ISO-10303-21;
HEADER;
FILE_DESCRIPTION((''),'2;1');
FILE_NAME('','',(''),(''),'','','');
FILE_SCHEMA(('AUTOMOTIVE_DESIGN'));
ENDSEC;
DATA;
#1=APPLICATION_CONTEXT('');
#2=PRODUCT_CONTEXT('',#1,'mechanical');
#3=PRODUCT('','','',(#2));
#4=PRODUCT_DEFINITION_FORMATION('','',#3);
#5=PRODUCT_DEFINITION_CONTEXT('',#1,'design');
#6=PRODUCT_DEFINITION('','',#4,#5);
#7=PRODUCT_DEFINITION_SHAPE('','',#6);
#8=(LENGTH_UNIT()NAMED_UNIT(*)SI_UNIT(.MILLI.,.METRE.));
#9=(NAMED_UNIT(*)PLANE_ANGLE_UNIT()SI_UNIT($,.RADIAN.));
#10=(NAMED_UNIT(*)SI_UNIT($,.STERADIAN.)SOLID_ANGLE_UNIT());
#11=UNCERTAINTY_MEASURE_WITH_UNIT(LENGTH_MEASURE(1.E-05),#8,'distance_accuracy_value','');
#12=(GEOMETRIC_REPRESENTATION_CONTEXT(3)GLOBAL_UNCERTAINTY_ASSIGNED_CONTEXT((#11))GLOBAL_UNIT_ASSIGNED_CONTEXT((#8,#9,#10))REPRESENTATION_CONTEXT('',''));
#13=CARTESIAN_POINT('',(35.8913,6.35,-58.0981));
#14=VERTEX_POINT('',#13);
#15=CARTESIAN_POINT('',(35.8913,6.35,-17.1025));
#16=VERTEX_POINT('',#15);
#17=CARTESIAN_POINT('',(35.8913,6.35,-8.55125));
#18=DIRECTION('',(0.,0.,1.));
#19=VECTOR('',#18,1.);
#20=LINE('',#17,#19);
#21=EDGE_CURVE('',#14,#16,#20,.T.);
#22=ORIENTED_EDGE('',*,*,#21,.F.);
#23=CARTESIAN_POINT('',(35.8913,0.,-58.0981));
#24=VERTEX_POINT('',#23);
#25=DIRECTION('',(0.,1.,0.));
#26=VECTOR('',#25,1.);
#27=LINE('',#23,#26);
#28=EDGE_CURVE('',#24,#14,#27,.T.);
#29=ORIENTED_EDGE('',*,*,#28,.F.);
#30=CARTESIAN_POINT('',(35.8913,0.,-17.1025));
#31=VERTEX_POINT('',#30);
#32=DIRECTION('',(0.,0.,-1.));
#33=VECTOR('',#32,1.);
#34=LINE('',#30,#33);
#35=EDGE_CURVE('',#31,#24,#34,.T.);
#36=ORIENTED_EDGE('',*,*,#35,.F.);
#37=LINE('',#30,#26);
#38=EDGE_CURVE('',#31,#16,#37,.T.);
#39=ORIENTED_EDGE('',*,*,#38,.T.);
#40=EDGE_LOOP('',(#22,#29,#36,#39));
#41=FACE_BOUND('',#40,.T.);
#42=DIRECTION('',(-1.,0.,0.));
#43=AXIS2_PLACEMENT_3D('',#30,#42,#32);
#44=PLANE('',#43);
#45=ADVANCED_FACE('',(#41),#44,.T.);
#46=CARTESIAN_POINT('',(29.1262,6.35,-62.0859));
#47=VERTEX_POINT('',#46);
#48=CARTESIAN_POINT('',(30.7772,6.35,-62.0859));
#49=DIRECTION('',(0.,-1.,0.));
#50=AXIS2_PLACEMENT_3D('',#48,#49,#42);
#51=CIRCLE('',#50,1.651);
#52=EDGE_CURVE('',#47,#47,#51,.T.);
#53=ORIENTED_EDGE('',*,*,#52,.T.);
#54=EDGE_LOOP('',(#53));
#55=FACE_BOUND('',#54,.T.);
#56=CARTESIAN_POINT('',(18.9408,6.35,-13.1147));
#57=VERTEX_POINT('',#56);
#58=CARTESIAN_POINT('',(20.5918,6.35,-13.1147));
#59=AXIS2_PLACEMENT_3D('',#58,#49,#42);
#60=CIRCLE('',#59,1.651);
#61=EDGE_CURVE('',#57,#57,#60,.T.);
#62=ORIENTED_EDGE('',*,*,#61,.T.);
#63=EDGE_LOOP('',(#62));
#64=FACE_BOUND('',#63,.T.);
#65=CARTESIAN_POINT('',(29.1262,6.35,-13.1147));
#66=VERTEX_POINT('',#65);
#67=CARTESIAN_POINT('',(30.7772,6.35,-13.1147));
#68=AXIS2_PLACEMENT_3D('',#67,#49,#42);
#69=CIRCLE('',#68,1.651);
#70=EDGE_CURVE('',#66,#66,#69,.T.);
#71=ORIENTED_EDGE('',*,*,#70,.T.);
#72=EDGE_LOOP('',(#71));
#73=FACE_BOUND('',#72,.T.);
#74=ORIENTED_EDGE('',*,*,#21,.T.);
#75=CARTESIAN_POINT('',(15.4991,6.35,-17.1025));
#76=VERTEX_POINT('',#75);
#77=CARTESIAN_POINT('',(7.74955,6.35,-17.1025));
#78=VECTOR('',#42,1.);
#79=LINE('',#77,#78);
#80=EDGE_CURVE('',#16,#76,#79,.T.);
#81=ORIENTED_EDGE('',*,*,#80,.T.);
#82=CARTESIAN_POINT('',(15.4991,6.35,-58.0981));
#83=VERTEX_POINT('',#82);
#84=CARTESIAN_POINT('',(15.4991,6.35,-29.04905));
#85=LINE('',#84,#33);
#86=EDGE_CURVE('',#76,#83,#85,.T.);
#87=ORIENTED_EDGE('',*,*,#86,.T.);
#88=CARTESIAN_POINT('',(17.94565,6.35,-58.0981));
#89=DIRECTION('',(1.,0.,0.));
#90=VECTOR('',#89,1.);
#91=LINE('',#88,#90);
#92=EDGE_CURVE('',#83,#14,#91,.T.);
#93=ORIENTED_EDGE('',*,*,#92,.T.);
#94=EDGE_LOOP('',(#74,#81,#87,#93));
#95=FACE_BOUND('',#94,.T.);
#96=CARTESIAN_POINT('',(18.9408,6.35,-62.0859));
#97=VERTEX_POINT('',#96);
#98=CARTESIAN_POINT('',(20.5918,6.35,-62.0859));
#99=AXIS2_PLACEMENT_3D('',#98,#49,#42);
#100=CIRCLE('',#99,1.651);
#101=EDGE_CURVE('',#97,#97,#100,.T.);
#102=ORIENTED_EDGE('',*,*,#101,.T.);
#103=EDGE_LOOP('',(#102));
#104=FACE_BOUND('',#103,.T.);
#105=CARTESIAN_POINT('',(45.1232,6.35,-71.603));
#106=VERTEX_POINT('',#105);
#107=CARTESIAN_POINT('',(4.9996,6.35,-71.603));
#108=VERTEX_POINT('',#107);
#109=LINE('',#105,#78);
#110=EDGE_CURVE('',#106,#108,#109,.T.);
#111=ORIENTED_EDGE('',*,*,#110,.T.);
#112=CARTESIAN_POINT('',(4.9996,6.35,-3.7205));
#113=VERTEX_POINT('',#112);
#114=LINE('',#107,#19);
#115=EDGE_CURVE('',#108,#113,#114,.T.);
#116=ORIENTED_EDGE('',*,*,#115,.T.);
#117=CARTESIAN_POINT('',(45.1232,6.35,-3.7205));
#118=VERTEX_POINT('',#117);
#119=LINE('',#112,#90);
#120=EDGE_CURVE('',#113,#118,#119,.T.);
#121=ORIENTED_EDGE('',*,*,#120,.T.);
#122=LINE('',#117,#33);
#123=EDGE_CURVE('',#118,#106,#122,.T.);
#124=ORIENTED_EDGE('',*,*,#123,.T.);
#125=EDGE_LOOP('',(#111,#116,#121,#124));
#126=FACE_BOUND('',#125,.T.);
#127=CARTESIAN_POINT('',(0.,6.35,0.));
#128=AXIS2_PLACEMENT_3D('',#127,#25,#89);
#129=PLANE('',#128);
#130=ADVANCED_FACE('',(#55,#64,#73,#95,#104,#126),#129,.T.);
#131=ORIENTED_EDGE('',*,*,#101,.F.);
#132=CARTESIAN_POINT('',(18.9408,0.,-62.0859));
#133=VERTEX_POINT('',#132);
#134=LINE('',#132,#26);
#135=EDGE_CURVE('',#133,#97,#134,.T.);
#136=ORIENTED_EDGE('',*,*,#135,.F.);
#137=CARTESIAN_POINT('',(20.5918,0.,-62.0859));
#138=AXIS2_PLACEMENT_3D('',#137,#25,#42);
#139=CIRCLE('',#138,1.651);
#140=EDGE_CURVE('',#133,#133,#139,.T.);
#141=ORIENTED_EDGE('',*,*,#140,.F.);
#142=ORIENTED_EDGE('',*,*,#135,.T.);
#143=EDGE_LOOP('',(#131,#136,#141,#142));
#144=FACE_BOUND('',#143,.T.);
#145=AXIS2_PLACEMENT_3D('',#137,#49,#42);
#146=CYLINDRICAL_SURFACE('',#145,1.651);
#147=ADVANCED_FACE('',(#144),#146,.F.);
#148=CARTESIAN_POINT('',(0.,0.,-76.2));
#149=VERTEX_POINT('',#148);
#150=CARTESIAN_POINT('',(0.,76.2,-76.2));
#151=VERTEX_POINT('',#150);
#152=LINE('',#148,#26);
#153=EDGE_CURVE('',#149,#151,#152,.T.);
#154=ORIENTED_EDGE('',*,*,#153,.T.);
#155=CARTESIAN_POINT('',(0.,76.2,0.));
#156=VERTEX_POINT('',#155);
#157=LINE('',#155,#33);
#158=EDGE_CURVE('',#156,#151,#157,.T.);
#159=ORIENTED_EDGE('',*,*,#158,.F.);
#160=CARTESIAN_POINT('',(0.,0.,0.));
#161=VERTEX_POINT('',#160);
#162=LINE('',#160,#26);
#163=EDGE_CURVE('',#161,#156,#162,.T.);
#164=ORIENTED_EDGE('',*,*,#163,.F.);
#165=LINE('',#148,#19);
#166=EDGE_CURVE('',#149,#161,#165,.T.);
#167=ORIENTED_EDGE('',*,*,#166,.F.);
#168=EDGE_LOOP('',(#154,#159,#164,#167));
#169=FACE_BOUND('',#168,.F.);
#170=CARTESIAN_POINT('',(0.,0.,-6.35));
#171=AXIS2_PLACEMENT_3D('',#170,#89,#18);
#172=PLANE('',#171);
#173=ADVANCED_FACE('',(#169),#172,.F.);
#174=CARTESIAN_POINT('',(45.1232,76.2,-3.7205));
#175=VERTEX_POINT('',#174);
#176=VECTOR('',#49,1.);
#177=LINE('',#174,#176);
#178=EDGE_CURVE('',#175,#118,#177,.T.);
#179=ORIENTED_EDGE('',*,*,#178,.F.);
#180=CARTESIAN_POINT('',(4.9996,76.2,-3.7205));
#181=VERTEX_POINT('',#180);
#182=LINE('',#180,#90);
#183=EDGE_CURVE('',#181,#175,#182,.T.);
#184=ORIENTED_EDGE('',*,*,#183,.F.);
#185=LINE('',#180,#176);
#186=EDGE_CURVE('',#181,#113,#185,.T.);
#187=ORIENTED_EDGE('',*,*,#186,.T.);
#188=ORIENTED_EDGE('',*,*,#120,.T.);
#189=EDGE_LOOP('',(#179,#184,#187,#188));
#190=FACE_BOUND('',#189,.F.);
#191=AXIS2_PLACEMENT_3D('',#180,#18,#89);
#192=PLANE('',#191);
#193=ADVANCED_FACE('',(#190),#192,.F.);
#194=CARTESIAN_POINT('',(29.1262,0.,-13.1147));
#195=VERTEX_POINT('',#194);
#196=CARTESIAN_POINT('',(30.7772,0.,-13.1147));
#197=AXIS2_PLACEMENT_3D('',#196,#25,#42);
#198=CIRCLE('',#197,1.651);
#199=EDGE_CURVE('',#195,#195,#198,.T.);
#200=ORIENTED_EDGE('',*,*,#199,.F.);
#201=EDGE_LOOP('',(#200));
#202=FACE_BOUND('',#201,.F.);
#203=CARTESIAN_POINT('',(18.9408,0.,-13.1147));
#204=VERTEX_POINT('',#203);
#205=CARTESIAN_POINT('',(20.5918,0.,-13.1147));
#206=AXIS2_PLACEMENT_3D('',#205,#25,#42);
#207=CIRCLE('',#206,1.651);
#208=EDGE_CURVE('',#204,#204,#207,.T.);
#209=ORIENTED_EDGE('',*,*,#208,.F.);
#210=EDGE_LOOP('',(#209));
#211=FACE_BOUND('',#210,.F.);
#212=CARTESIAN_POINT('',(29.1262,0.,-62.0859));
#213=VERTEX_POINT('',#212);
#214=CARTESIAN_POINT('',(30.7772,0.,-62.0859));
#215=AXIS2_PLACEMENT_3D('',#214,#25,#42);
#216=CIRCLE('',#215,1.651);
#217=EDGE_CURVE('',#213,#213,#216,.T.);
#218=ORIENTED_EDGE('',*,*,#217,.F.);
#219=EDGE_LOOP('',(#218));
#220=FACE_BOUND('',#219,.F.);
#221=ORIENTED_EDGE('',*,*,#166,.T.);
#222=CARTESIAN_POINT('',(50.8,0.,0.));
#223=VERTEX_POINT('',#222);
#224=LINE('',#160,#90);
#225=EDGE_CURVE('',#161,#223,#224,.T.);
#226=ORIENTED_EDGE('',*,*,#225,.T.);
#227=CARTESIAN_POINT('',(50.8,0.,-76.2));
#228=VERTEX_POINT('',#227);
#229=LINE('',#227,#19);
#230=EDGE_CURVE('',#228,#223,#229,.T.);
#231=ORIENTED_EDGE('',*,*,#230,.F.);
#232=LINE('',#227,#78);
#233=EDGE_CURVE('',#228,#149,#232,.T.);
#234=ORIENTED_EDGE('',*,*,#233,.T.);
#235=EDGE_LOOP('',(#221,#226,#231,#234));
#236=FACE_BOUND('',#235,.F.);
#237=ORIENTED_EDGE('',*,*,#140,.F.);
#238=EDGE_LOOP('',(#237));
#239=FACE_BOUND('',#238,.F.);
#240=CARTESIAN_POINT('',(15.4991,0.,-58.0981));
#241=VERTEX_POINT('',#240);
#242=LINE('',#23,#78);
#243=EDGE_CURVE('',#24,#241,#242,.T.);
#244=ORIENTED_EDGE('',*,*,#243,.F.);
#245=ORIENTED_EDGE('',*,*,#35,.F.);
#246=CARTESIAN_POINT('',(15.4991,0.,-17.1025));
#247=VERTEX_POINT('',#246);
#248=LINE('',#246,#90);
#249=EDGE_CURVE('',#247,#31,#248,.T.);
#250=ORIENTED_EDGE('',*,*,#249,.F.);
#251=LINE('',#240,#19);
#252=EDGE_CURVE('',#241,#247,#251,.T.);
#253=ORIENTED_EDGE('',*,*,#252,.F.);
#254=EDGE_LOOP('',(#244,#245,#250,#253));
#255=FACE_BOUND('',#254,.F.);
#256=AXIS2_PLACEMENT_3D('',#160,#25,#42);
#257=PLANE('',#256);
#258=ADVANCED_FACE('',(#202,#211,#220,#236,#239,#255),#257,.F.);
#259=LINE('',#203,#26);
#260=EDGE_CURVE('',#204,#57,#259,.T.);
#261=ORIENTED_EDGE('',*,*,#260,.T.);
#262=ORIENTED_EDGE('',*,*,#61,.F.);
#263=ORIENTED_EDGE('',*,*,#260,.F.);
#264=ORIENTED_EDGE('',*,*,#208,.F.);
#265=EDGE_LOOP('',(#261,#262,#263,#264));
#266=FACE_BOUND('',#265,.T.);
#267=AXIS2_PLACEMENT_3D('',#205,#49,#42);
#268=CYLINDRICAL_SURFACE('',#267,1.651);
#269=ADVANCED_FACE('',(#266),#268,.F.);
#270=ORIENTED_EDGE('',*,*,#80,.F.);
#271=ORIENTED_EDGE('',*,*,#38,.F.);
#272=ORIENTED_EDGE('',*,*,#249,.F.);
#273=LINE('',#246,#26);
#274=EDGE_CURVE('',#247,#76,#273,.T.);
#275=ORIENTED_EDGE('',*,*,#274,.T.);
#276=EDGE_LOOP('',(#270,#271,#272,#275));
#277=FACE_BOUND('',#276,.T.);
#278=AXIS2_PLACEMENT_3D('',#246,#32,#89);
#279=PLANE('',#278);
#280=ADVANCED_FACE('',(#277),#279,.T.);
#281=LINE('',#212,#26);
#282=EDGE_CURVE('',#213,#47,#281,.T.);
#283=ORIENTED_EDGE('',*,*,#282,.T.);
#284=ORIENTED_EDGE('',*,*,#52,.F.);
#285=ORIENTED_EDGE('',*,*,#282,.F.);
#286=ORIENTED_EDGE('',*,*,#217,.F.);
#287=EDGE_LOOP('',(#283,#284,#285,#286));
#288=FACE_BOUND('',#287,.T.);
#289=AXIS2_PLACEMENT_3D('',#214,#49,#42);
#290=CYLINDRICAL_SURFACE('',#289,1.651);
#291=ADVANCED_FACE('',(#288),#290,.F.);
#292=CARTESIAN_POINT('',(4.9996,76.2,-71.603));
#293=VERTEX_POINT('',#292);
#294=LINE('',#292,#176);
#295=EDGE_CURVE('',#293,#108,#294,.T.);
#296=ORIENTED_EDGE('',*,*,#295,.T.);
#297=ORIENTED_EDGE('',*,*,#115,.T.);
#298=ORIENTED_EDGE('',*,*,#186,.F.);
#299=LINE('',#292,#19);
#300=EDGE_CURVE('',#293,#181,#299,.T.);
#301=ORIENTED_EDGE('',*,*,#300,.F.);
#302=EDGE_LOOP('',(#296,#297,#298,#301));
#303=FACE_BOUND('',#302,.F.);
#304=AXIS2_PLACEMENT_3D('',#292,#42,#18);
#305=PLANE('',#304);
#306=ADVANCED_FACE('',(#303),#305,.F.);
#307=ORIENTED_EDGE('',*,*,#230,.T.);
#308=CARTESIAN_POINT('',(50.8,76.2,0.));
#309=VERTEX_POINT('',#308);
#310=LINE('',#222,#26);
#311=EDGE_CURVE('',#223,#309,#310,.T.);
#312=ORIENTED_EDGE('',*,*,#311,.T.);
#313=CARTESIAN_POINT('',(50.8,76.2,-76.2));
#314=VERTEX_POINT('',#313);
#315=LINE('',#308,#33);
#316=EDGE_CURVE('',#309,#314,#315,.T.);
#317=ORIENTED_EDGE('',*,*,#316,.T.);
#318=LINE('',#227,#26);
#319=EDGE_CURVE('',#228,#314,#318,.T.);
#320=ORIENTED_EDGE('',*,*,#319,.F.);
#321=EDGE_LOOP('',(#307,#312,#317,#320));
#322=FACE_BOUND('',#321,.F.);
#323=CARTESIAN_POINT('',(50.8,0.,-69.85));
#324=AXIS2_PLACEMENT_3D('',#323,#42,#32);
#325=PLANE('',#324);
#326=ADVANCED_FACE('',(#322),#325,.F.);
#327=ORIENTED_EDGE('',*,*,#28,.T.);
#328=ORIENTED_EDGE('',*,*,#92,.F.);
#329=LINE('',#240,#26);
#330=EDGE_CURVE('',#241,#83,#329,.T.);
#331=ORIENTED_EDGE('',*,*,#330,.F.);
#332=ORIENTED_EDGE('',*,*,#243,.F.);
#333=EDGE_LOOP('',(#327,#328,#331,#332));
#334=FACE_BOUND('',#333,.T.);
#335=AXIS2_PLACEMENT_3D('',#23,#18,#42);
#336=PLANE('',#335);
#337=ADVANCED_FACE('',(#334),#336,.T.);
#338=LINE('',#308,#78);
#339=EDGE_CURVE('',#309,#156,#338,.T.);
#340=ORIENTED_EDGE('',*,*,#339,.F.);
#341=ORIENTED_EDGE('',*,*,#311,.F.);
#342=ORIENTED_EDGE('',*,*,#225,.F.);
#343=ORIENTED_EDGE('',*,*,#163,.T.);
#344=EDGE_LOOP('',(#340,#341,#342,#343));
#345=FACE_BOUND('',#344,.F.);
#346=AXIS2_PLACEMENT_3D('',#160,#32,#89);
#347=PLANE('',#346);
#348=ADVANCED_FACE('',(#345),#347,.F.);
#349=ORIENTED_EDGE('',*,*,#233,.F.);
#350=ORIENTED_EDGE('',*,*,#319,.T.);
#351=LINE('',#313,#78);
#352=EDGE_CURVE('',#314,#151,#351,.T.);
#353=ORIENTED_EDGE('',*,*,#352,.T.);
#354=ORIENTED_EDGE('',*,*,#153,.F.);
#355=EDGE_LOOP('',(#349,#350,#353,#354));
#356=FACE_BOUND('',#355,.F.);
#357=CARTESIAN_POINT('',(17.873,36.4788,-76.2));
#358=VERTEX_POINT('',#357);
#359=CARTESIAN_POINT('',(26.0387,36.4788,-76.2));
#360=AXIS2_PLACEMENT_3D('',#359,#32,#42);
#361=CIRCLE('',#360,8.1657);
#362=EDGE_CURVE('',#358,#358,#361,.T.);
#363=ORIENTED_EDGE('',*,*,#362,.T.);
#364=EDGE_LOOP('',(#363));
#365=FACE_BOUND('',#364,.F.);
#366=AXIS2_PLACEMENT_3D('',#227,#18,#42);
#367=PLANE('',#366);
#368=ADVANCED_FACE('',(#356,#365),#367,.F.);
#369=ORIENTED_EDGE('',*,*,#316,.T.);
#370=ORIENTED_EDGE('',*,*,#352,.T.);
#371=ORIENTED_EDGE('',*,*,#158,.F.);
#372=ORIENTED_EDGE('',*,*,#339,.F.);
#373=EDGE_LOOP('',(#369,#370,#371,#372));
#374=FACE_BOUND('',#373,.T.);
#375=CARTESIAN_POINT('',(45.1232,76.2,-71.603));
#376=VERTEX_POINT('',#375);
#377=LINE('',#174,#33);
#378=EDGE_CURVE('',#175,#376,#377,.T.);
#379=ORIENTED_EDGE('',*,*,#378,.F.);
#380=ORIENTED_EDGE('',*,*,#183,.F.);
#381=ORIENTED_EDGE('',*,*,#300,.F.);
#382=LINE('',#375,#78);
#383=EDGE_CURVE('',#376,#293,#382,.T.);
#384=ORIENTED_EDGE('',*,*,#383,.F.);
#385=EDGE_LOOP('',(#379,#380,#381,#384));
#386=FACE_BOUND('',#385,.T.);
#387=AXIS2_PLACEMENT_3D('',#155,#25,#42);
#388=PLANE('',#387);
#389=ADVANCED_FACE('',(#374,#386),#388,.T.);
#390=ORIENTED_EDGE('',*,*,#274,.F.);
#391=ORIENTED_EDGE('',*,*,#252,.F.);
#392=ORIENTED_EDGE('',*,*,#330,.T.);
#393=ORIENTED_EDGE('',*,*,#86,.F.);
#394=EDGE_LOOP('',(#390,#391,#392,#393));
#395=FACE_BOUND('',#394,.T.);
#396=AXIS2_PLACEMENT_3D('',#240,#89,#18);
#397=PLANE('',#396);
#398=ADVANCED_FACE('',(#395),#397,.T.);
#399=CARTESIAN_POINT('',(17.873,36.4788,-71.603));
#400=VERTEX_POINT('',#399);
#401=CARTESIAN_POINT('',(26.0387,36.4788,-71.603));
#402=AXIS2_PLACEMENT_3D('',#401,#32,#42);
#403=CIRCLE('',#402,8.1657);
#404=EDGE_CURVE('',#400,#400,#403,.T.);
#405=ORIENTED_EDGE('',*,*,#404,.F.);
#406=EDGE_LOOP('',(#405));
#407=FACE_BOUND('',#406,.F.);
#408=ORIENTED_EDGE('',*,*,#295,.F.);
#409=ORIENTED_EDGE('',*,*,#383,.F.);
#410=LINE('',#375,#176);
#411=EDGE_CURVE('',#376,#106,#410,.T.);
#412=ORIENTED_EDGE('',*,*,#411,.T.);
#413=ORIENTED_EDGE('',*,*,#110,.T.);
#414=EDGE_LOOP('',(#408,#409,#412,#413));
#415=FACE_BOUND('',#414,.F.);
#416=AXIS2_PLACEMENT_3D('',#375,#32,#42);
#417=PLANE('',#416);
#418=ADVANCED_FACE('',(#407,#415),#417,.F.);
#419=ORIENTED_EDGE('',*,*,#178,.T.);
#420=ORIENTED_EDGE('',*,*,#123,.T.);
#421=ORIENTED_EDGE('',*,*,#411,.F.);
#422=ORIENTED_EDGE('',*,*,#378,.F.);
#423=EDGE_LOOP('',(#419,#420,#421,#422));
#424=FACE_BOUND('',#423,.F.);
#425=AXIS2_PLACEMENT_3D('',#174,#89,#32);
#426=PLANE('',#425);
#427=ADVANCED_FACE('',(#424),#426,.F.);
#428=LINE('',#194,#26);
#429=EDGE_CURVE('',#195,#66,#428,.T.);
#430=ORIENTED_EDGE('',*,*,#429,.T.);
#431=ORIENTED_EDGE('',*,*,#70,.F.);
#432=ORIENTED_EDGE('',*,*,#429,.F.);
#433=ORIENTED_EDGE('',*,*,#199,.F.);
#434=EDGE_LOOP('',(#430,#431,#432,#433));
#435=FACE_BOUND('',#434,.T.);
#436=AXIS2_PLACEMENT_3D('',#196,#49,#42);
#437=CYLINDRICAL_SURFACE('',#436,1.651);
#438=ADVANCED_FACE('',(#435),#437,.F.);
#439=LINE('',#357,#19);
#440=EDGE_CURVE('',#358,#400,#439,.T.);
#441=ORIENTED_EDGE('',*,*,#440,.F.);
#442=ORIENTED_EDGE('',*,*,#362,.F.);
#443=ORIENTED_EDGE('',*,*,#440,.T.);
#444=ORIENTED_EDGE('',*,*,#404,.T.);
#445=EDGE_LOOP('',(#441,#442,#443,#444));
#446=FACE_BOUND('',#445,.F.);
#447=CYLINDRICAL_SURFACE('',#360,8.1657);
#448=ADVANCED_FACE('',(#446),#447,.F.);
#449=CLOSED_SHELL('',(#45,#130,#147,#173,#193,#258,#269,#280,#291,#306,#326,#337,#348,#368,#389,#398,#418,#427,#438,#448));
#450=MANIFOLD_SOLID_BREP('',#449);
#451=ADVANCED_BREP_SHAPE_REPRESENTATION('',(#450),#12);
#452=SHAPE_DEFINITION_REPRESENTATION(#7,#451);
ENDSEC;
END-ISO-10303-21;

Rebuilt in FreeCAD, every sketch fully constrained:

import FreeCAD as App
import Part
import Sketcher
from FreeCAD import Vector
Q = App.Units.Quantity


def add_polygon(sketch, points):
    """Adds a closed chain of lines whose ends are joined by coincident constraints."""
    first, n = sketch.GeometryCount, len(points)
    for a, b in zip(points, points[1:] + points[:1]):
        sketch.addGeometry(Part.LineSegment(App.Vector(*a, 0), App.Vector(*b, 0)), False)
    for i in range(n):
        sketch.addConstraint(Sketcher.Constraint("Coincident", first + i, 2, first + (i + 1) % n, 1))

doc = App.newDocument("Part")
body = doc.addObject("PartDesign::Body", "Body")

# Sketch on XZ plane
sketch1 = doc.addObject("Sketcher::SketchObject", "Sketch")
body.addObject(sketch1)
sketch1.AttachmentSupport = (doc.XZ_Plane, [""])
sketch1.MapMode = "FlatFace"
add_polygon(sketch1, [(0, 0), (51, 0), (51, -76), (0, -76)])  # lines 0-3
sketch1.addConstraint(Sketcher.Constraint("Horizontal", 0))
sketch1.addConstraint(Sketcher.Constraint("Vertical", 1))
sketch1.addConstraint(Sketcher.Constraint("Horizontal", 2))
sketch1.addConstraint(Sketcher.Constraint("Vertical", 3))
sketch1.addConstraint(Sketcher.Constraint("Coincident", 3, 2, -1, 1))
sketch1.addConstraint(Sketcher.Constraint("DistanceX", 0, 1, 0, 2, Q("2 in")))
sketch1.addConstraint(Sketcher.Constraint("DistanceY", 1, 2, 1, 1, Q("3 in")))
pad1 = doc.addObject("PartDesign::Pad", "Pad")
body.addObject(pad1)
pad1.Profile = sketch1
pad1.Length = Q("3 in")
pad1.Reversed = True

# Sketch on XZ plane
sketch2 = doc.addObject("Sketcher::SketchObject", "Sketch001")
body.addObject(sketch2)
sketch2.AttachmentSupport = (doc.XZ_Plane, [""])
sketch2.MapMode = "FlatFace"
sketch2.AttachmentOffset = App.Placement(Vector(0, 0, -3 * 25.4), App.Rotation())
add_polygon(sketch2, [(45, -4), (45, -72), (5, -72), (5, -4)])  # lines 0-3
sketch2.addConstraint(Sketcher.Constraint("Vertical", 0))
sketch2.addConstraint(Sketcher.Constraint("Horizontal", 1))
sketch2.addConstraint(Sketcher.Constraint("Vertical", 2))
sketch2.addConstraint(Sketcher.Constraint("Horizontal", 3))
sketch2.addConstraint(Sketcher.Constraint("DistanceX", 1, 2, 1, 1, Q("40.1236 mm")))
sketch2.addConstraint(Sketcher.Constraint("DistanceY", 0, 2, 0, 1, Q("67.8825 mm")))
sketch2.addConstraint(Sketcher.Constraint("DistanceX", -1, 1, 0, 2, Q("1.7765 in")))
sketch2.addConstraint(Sketcher.Constraint("DistanceY", 0, 2, -1, 1, Q("71.603 mm")))
pocket1 = doc.addObject("PartDesign::Pocket", "Pocket")
body.addObject(pocket1)
pocket1.Profile = sketch2
pocket1.Length = Q("2.75 in")
pocket1.Reversed = True

# Sketch on XY plane
sketch3 = doc.addObject("Sketcher::SketchObject", "Sketch002")
body.addObject(sketch3)
sketch3.AttachmentSupport = (doc.XY_Plane, [""])
sketch3.MapMode = "FlatFace"
sketch3.AttachmentOffset = App.Placement(Vector(0, 0, -3 * 25.4), App.Rotation())
sketch3.addGeometry(Part.Circle(Vector(26, 36, 0), Vector(0, 0, 1), 8), False)
sketch3.addConstraint(Sketcher.Constraint("Diameter", 0, Q("16.3314 mm")))
sketch3.addConstraint(Sketcher.Constraint("DistanceX", -1, 1, 0, 3, Q("26.0387 mm")))
sketch3.addConstraint(Sketcher.Constraint("DistanceY", -1, 1, 0, 3, Q("36.4788 mm")))
pocket2 = doc.addObject("PartDesign::Pocket", "Pocket001")
body.addObject(pocket2)
pocket2.Profile = sketch3
pocket2.Length = Q("1 in")
pocket2.Reversed = True

# Sketch on XZ plane
sketch4 = doc.addObject("Sketcher::SketchObject", "Sketch003")
body.addObject(sketch4)
sketch4.AttachmentSupport = (doc.XZ_Plane, [""])
sketch4.MapMode = "FlatFace"
add_polygon(sketch4, [(15.5, -58.1), (15.5, -17.1), (35.9, -17.1), (35.9, -58.1)])  # lines 0-3
sketch4.addGeometry(Part.Circle(Vector(20.6, -13.1, 0), Vector(0, 0, 1), 1.7), False)  # 4
sketch4.addGeometry(Part.Circle(Vector(30.8, -13.1, 0), Vector(0, 0, 1), 1.7), False)  # 5
sketch4.addGeometry(Part.Circle(Vector(20.6, -62.1, 0), Vector(0, 0, 1), 1.7), False)  # 6
sketch4.addGeometry(Part.Circle(Vector(30.8, -62.1, 0), Vector(0, 0, 1), 1.7), False)  # 7
sketch4.addConstraint(Sketcher.Constraint("Vertical", 0))
sketch4.addConstraint(Sketcher.Constraint("Horizontal", 1))
sketch4.addConstraint(Sketcher.Constraint("Vertical", 2))
sketch4.addConstraint(Sketcher.Constraint("Horizontal", 3))
sketch4.addConstraint(Sketcher.Constraint("Equal", 4, 5))
sketch4.addConstraint(Sketcher.Constraint("Equal", 5, 6))
sketch4.addConstraint(Sketcher.Constraint("Equal", 6, 7))
sketch4.addConstraint(Sketcher.Constraint("Horizontal", 4, 3, 5, 3))
sketch4.addConstraint(Sketcher.Constraint("Horizontal", 6, 3, 7, 3))
sketch4.addConstraint(Sketcher.Constraint("Vertical", 4, 3, 6, 3))
sketch4.addConstraint(Sketcher.Constraint("Vertical", 5, 3, 7, 3))
sketch4.addConstraint(Sketcher.Constraint("Diameter", 4, Q("0.13 in")))
sketch4.addConstraint(Sketcher.Constraint("DistanceY", 0, 1, 0, 2, Q("1.614 in")))
sketch4.addConstraint(Sketcher.Constraint("DistanceX", 4, 3, 5, 3, Q("0.401 in")))
sketch4.addConstraint(Sketcher.Constraint("DistanceY", 6, 3, 4, 3, Q("1.928 in")))
sketch4.addConstraint(Sketcher.Constraint("DistanceY", 0, 2, 4, 3, Q("0.157 in")))
sketch4.addConstraint(Sketcher.Constraint("DistanceX", 1, 1, 1, 2, Q("20.3922 mm")))
sketch4.addConstraint(Sketcher.Constraint("DistanceX", -1, 1, 4, 3, Q("0.8107 in")))
sketch4.addConstraint(Sketcher.Constraint("DistanceX", -1, 1, 0, 2, Q("0.6102 in")))
sketch4.addConstraint(Sketcher.Constraint("DistanceY", 4, 3, -1, 1, Q("13.1147 mm")))
pocket3 = doc.addObject("PartDesign::Pocket", "Pocket002")
body.addObject(pocket3)
pocket3.Profile = sketch4
pocket3.Type = "ThroughAll"

doc.recompute()
